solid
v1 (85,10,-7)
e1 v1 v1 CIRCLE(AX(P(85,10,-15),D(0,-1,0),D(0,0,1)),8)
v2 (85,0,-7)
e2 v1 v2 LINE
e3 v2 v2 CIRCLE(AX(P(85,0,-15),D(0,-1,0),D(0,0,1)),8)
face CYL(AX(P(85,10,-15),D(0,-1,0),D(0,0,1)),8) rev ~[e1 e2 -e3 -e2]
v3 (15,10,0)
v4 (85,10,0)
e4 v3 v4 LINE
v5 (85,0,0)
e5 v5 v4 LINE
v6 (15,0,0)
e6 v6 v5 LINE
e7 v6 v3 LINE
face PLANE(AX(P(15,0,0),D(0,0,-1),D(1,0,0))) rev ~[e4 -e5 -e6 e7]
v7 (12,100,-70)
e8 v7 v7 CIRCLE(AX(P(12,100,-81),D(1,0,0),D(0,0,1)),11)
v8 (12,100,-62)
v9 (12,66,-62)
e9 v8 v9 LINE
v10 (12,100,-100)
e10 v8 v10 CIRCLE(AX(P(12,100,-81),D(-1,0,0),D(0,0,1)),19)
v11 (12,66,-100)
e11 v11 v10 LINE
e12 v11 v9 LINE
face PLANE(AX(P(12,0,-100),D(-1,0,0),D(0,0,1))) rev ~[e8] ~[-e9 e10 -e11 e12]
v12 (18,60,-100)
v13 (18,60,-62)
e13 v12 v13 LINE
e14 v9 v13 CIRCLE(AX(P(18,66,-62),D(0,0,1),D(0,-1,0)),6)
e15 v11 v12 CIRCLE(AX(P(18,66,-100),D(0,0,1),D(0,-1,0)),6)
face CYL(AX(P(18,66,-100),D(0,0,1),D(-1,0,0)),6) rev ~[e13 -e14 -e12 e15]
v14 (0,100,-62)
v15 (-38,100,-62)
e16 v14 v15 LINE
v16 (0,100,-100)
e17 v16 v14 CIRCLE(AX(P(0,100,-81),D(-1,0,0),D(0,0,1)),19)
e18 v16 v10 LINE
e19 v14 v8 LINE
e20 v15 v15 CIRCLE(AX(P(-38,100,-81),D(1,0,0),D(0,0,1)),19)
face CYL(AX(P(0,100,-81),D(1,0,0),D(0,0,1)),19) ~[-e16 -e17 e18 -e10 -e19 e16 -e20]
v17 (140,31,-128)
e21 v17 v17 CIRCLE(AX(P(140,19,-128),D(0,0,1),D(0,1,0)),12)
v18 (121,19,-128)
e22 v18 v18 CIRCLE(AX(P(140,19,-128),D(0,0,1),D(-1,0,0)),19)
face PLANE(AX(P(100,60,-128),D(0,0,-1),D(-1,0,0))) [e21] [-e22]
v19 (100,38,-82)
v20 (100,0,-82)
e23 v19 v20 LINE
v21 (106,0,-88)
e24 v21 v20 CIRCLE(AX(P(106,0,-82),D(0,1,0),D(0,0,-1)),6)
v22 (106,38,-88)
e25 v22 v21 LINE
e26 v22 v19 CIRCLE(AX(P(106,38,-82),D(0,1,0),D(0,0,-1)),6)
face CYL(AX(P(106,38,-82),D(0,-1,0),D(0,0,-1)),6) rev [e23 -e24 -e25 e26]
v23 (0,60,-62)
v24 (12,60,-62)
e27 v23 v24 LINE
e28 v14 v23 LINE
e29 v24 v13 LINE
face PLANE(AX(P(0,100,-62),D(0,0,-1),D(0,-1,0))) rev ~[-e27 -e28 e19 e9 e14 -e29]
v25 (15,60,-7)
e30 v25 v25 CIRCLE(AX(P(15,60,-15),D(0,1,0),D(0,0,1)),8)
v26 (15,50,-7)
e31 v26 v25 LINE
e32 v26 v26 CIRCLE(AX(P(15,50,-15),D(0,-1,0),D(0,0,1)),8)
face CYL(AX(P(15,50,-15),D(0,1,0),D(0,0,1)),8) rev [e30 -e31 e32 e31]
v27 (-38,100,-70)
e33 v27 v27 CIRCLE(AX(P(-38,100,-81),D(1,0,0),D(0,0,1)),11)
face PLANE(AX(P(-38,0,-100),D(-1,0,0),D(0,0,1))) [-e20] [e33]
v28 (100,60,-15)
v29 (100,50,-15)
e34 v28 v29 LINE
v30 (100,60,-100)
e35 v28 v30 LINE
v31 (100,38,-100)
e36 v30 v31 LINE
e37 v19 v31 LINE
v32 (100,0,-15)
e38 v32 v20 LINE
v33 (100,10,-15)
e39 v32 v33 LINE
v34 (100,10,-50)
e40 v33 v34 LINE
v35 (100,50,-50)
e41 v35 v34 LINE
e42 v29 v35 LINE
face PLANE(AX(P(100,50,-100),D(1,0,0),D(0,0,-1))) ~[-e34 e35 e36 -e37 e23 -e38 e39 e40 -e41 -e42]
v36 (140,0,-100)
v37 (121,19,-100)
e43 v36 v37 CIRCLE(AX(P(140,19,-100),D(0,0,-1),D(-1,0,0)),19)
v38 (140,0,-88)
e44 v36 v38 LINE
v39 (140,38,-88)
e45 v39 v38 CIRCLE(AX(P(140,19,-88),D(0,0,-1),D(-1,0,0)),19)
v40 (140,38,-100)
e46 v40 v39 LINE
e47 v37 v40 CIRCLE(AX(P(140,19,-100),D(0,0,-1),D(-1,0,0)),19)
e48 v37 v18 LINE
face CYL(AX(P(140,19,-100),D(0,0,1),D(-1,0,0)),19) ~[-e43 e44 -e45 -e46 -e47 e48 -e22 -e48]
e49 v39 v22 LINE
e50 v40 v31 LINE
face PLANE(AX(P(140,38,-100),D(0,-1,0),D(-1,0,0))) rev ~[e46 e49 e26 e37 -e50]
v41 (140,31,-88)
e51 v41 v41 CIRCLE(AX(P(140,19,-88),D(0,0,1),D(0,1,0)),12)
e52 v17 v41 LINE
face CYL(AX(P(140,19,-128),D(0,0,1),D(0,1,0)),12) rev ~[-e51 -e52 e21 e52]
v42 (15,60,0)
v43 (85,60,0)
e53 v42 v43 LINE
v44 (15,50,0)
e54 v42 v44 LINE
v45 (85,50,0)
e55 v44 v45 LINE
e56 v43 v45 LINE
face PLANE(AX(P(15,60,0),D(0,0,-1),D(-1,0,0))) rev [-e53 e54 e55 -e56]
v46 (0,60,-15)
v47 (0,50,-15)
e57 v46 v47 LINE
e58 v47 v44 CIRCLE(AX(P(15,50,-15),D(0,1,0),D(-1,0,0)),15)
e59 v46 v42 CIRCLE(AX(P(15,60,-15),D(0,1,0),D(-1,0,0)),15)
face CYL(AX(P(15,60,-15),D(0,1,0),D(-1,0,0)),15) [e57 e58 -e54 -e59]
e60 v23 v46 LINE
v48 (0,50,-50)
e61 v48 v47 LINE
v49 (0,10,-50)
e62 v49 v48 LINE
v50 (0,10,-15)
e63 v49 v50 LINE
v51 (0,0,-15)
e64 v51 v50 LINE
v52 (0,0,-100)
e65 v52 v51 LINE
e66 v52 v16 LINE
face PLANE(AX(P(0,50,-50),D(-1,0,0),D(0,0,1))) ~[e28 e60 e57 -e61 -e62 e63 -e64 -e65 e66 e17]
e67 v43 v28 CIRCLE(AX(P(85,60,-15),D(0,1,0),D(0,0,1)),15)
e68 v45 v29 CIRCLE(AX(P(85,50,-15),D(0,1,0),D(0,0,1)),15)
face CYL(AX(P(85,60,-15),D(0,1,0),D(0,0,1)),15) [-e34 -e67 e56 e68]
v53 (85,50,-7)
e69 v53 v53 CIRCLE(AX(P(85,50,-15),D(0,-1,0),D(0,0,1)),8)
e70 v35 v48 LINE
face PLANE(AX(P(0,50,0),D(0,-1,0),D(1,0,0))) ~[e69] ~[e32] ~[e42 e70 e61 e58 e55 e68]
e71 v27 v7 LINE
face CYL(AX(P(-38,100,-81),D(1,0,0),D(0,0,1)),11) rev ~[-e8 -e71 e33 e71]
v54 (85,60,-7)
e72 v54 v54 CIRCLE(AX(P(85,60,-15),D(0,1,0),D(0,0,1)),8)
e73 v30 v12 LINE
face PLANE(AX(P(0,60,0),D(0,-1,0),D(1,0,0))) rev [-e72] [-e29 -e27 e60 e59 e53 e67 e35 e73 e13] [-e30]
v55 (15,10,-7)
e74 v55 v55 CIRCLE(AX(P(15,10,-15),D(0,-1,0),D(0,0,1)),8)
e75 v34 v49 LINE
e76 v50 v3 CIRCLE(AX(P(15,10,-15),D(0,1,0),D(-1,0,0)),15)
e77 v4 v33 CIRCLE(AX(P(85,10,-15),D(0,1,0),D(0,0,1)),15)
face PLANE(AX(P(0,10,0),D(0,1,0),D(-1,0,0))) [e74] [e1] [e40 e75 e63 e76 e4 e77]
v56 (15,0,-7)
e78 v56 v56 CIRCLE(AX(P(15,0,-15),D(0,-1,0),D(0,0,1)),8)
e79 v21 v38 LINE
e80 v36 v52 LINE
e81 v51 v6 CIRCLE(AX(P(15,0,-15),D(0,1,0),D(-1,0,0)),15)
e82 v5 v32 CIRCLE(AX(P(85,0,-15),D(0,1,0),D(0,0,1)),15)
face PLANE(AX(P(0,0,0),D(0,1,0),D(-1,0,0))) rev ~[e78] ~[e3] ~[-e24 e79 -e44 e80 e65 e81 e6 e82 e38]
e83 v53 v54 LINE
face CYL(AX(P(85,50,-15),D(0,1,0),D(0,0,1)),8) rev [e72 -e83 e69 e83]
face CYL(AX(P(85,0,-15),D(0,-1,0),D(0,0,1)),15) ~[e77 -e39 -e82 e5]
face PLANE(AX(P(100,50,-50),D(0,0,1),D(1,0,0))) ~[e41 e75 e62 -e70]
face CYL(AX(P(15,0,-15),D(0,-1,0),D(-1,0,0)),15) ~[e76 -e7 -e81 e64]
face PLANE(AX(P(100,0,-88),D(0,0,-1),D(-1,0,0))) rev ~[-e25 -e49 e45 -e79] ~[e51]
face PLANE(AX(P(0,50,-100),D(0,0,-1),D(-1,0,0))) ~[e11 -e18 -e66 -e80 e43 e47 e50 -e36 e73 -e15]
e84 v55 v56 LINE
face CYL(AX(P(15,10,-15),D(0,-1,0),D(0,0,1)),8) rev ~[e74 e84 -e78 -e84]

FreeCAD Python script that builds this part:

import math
import FreeCAD as App
import Part
import Sketcher

V = App.Vector


def edges_at(feature, points):
    """Names of the edges that pass closest to the given points."""
    edges = feature.Shape.Edges
    near = lambda p: min(range(len(edges)), key=lambda i: edges[i].distToShape(Part.Vertex(*p))[0])
    return sorted({f"Edge{near(p) + 1}" for p in points})


def add_polygon(sketch, points):
    """Adds a closed chain of lines whose ends are joined by coincident constraints."""
    first, n = sketch.GeometryCount, len(points)
    for a, b in zip(points, points[1:] + points[:1]):
        sketch.addGeometry(Part.LineSegment(App.Vector(*a, 0), App.Vector(*b, 0)), False)
    for i in range(n):
        sketch.addConstraint(Sketcher.Constraint("Coincident", first + i, 2, first + (i + 1) % n, 1))

doc = App.newDocument("Part")
body = doc.addObject("PartDesign::Body", "Body")

# Sketch on XZ plane
sketch1 = doc.addObject("Sketcher::SketchObject", "Sketch")
body.addObject(sketch1)
sketch1.AttachmentSupport = (doc.XZ_Plane, [""])
sketch1.MapMode = "FlatFace"
sketch1.addGeometry([
    Part.ArcOfCircle(Part.Circle(V(15, -15, 0), V(0, 0, 1), 15), math.radians(90), math.radians(180)),  # 0
    Part.LineSegment(V(15, 0, 0), V(85, 0, 0)),  # 1
    Part.ArcOfCircle(Part.Circle(V(85, -15, 0), V(0, 0, 1), 15), math.radians(0), math.radians(90)),  # 2
    Part.LineSegment(V(100, -15, 0), V(100, -100, 0)),  # 3
    Part.LineSegment(V(100, -100, 0), V(0, -100, 0)),  # 4
    Part.LineSegment(V(0, -100, 0), V(0, -15, 0)),  # 5
], False)
sketch1.addConstraint([
    Sketcher.Constraint("Tangent", 0, 1, 1, 1),
    Sketcher.Constraint("Tangent", 1, 2, 2, 2),
    Sketcher.Constraint("Tangent", 2, 1, 3, 1),
    Sketcher.Constraint("Coincident", 3, 2, 4, 1),
    Sketcher.Constraint("Coincident", 4, 2, 5, 1),
    Sketcher.Constraint("Tangent", 5, 2, 0, 2),
    Sketcher.Constraint("Horizontal", 1),
    Sketcher.Constraint("Vertical", 3),
    Sketcher.Constraint("Horizontal", 4),
    Sketcher.Constraint("Vertical", 5),
    Sketcher.Constraint("Equal", 0, 2),
    Sketcher.Constraint("PointOnObject", 0, 1, -1),
    Sketcher.Constraint("PointOnObject", 4, 2, -2),
    Sketcher.Constraint("Radius", 0, 15.0),
    Sketcher.Constraint("DistanceX", 4, 2, 4, 1, 100.0),
    Sketcher.Constraint("DistanceY", 3, 2, -1, 1, 100.0),
])
pad1 = doc.addObject("PartDesign::Pad", "Pad")
body.addObject(pad1)
pad1.Profile = sketch1
pad1.Length = 10
pad1.Reversed = True

# Sketch on XZ plane
sketch2 = doc.addObject("Sketcher::SketchObject", "Sketch001")
body.addObject(sketch2)
sketch2.AttachmentSupport = (doc.XZ_Plane, [""])
sketch2.MapMode = "FlatFace"
sketch2.AttachmentOffset = App.Placement(V(0, 0, -10), App.Rotation())
add_polygon(sketch2, [(100, -100), (0, -100), (0, -50), (100, -50)])  # lines 0-3
sketch2.addConstraint([
    Sketcher.Constraint("Horizontal", 0),
    Sketcher.Constraint("Vertical", 1),
    Sketcher.Constraint("Horizontal", 2),
    Sketcher.Constraint("Vertical", 3),
    Sketcher.Constraint("PointOnObject", 0, 2, -2),
    Sketcher.Constraint("DistanceX", 0, 2, 0, 1, 100.0),
    Sketcher.Constraint("DistanceY", 1, 1, 1, 2, 50.0),
    Sketcher.Constraint("DistanceY", 0, 2, -1, 1, 100.0),
])
pad2 = doc.addObject("PartDesign::Pad", "Pad001")
body.addObject(pad2)
pad2.Profile = sketch2
pad2.Length = 20
pad2.Reversed = True

# Sketch on XZ plane
sketch3 = doc.addObject("Sketcher::SketchObject", "Sketch002")
body.addObject(sketch3)
sketch3.AttachmentSupport = (doc.XZ_Plane, [""])
sketch3.MapMode = "FlatFace"
sketch3.AttachmentOffset = App.Placement(V(0, 0, -10), App.Rotation())
sketch3.addGeometry([
    Part.Circle(V(15, -15, 0), V(0, 0, 1), 8),
    Part.Circle(V(85, -15, 0), V(0, 0, 1), 8),
], False)
sketch3.addConstraint([
    Sketcher.Constraint("Equal", 0, 1),
    Sketcher.Constraint("Horizontal", 0, 3, 1, 3),
    Sketcher.Constraint("Diameter", 0, 16.0),
    Sketcher.Constraint("DistanceX", -1, 1, 0, 3, 15.0),
    Sketcher.Constraint("DistanceY", 0, 3, -1, 1, 15.0),
    Sketcher.Constraint("DistanceX", -1, 1, 1, 3, 85.0),
])
doc.recompute()
hole = doc.addObject("PartDesign::Hole", "Hole")
body.addObject(hole)
hole.Profile = sketch3
hole.ThreadType = "None"
hole.Diameter = 16
hole.DepthType = "ThroughAll"
hole.Reversed = True
doc.recompute()

datumplane = doc.addObject("PartDesign::Plane", "DatumPlane")
body.addObject(datumplane)
datumplane.AttachmentSupport = (doc.XZ_Plane, [""])
datumplane.MapMode = "FlatFace"
datumplane.AttachmentOffset = App.Placement(V(0, 0, -30), App.Rotation())
mirrored = doc.addObject("PartDesign::Mirrored", "Mirrored")
body.addObject(mirrored)
mirrored.Originals = [pad1, hole, pad2]
mirrored.MirrorPlane = (datumplane, [""])
body.Tip = mirrored

# Sketch on XY plane
sketch4 = doc.addObject("Sketcher::SketchObject", "Sketch003")
body.addObject(sketch4)
sketch4.AttachmentSupport = (doc.XY_Plane, [""])
sketch4.MapMode = "FlatFace"
sketch4.AttachmentOffset = App.Placement(V(0, 0, -100), App.Rotation())
sketch4.addGeometry([
    Part.ArcOfCircle(Part.Circle(V(140, 19, 0), V(0, 0, 1), 19), math.radians(-90), math.radians(90)),
    Part.LineSegment(V(140, 0, 0), V(100, 0, 0)),
    Part.LineSegment(V(100, 0, 0), V(100, 38, 0)),
    Part.LineSegment(V(100, 38, 0), V(140, 38, 0)),
], False)
sketch4.addConstraint([
    Sketcher.Constraint("Tangent", 0, 1, 1, 1),
    Sketcher.Constraint("Coincident", 1, 2, 2, 1),
    Sketcher.Constraint("Coincident", 2, 2, 3, 1),
    Sketcher.Constraint("Tangent", 3, 2, 0, 2),
    Sketcher.Constraint("Horizontal", 1),
    Sketcher.Constraint("Vertical", 2),
    Sketcher.Constraint("Horizontal", 3),
    Sketcher.Constraint("PointOnObject", 0, 1, -1),
    Sketcher.Constraint("Radius", 0, 19.0),
    Sketcher.Constraint("DistanceX", 1, 2, 1, 1, 40.0),
    Sketcher.Constraint("DistanceX", -1, 1, 0, 3, 140.0),
])
pad3 = doc.addObject("PartDesign::Pad", "Pad002")
body.addObject(pad3)
pad3.Profile = sketch4
pad3.Length = 12

# Sketch on XY plane
sketch5 = doc.addObject("Sketcher::SketchObject", "Sketch004")
body.addObject(sketch5)
sketch5.AttachmentSupport = (doc.XY_Plane, [""])
sketch5.MapMode = "FlatFace"
sketch5.AttachmentOffset = App.Placement(V(0, 0, -100), App.Rotation())
sketch5.addGeometry(Part.Circle(V(140, 19, 0), V(0, 0, 1), 19), False)
sketch5.addConstraint([
    Sketcher.Constraint("Diameter", 0, 38.0),
    Sketcher.Constraint("DistanceX", -1, 1, 0, 3, 140.0),
    Sketcher.Constraint("DistanceY", -1, 1, 0, 3, 19.0),
])
pad4 = doc.addObject("PartDesign::Pad", "Pad003")
body.addObject(pad4)
pad4.Profile = sketch5
pad4.Length = 28
pad4.Reversed = True

# Sketch on XY plane
sketch6 = doc.addObject("Sketcher::SketchObject", "Sketch005")
body.addObject(sketch6)
sketch6.AttachmentSupport = (doc.XY_Plane, [""])
sketch6.MapMode = "FlatFace"
sketch6.AttachmentOffset = App.Placement(V(0, 0, -128), App.Rotation())
sketch6.addGeometry(Part.Circle(V(140, 19, 0), V(0, 0, 1), 12), False)
sketch6.addConstraint([
    Sketcher.Constraint("Diameter", 0, 24.0),
    Sketcher.Constraint("DistanceX", -1, 1, 0, 3, 140.0),
    Sketcher.Constraint("DistanceY", -1, 1, 0, 3, 19.0),
])
doc.recompute()
hole2 = doc.addObject("PartDesign::Hole", "Hole001")
body.addObject(hole2)
hole2.Profile = sketch6
hole2.ThreadType = "None"
hole2.Diameter = 24
hole2.DepthType = "ThroughAll"
hole2.Reversed = True
doc.recompute()

fillet = doc.addObject("PartDesign::Fillet", "Fillet")
body.addObject(fillet)
fillet.Base = (hole2, edges_at(hole2, [(100, 19, -88)]))
fillet.Radius = 6

# Sketch on YZ plane
sketch7 = doc.addObject("Sketcher::SketchObject", "Sketch006")
body.addObject(sketch7)
sketch7.AttachmentSupport = (doc.YZ_Plane, [""])
sketch7.MapMode = "FlatFace"
sketch7.addGeometry([
    Part.ArcOfCircle(Part.Circle(V(100, -81, 0), V(0, 0, 1), 19), math.radians(-90), math.radians(90)),
    Part.LineSegment(V(100, -100, 0), V(60, -100, 0)),
    Part.LineSegment(V(60, -100, 0), V(60, -62, 0)),
    Part.LineSegment(V(60, -62, 0), V(100, -62, 0)),
], False)
sketch7.addConstraint([
    Sketcher.Constraint("Tangent", 0, 1, 1, 1),
    Sketcher.Constraint("Coincident", 1, 2, 2, 1),
    Sketcher.Constraint("Coincident", 2, 2, 3, 1),
    Sketcher.Constraint("Tangent", 3, 2, 0, 2),
    Sketcher.Constraint("Horizontal", 1),
    Sketcher.Constraint("Vertical", 2),
    Sketcher.Constraint("Horizontal", 3),
    Sketcher.Constraint("Radius", 0, 19.0),
    Sketcher.Constraint("DistanceX", 1, 2, 1, 1, 40.0),
    Sketcher.Constraint("DistanceX", -1, 1, 0, 3, 100.0),
    Sketcher.Constraint("DistanceY", 0, 3, -1, 1, 81.0),
])
pad5 = doc.addObject("PartDesign::Pad", "Pad004")
body.addObject(pad5)
pad5.Profile = sketch7
pad5.Length = 12

# Sketch on YZ plane
sketch8 = doc.addObject("Sketcher::SketchObject", "Sketch007")
body.addObject(sketch8)
sketch8.AttachmentSupport = (doc.YZ_Plane, [""])
sketch8.MapMode = "FlatFace"
sketch8.addGeometry(Part.Circle(V(100, -81, 0), V(0, 0, 1), 19), False)
sketch8.addConstraint([
    Sketcher.Constraint("Diameter", 0, 38.0),
    Sketcher.Constraint("DistanceX", -1, 1, 0, 3, 100.0),
    Sketcher.Constraint("DistanceY", 0, 3, -1, 1, 81.0),
])
pad6 = doc.addObject("PartDesign::Pad", "Pad005")
body.addObject(pad6)
pad6.Profile = sketch8
pad6.Length = 38
pad6.Reversed = True

# Sketch on YZ plane
sketch9 = doc.addObject("Sketcher::SketchObject", "Sketch008")
body.addObject(sketch9)
sketch9.AttachmentSupport = (doc.YZ_Plane, [""])
sketch9.MapMode = "FlatFace"
sketch9.AttachmentOffset = App.Placement(V(0, 0, -38), App.Rotation())
sketch9.addGeometry(Part.Circle(V(100, -81, 0), V(0, 0, 1), 11), False)
sketch9.addConstraint([
    Sketcher.Constraint("Diameter", 0, 22.0),
    Sketcher.Constraint("DistanceX", -1, 1, 0, 3, 100.0),
    Sketcher.Constraint("DistanceY", 0, 3, -1, 1, 81.0),
])
doc.recompute()
hole3 = doc.addObject("PartDesign::Hole", "Hole002")
body.addObject(hole3)
hole3.Profile = sketch9
hole3.ThreadType = "None"
hole3.Diameter = 22
hole3.DepthType = "ThroughAll"
hole3.Reversed = True
doc.recompute()

fillet2 = doc.addObject("PartDesign::Fillet", "Fillet001")
body.addObject(fillet2)
fillet2.Base = (hole3, edges_at(hole3, [(12, 60, -81)]))
fillet2.Radius = 6

doc.recompute()
